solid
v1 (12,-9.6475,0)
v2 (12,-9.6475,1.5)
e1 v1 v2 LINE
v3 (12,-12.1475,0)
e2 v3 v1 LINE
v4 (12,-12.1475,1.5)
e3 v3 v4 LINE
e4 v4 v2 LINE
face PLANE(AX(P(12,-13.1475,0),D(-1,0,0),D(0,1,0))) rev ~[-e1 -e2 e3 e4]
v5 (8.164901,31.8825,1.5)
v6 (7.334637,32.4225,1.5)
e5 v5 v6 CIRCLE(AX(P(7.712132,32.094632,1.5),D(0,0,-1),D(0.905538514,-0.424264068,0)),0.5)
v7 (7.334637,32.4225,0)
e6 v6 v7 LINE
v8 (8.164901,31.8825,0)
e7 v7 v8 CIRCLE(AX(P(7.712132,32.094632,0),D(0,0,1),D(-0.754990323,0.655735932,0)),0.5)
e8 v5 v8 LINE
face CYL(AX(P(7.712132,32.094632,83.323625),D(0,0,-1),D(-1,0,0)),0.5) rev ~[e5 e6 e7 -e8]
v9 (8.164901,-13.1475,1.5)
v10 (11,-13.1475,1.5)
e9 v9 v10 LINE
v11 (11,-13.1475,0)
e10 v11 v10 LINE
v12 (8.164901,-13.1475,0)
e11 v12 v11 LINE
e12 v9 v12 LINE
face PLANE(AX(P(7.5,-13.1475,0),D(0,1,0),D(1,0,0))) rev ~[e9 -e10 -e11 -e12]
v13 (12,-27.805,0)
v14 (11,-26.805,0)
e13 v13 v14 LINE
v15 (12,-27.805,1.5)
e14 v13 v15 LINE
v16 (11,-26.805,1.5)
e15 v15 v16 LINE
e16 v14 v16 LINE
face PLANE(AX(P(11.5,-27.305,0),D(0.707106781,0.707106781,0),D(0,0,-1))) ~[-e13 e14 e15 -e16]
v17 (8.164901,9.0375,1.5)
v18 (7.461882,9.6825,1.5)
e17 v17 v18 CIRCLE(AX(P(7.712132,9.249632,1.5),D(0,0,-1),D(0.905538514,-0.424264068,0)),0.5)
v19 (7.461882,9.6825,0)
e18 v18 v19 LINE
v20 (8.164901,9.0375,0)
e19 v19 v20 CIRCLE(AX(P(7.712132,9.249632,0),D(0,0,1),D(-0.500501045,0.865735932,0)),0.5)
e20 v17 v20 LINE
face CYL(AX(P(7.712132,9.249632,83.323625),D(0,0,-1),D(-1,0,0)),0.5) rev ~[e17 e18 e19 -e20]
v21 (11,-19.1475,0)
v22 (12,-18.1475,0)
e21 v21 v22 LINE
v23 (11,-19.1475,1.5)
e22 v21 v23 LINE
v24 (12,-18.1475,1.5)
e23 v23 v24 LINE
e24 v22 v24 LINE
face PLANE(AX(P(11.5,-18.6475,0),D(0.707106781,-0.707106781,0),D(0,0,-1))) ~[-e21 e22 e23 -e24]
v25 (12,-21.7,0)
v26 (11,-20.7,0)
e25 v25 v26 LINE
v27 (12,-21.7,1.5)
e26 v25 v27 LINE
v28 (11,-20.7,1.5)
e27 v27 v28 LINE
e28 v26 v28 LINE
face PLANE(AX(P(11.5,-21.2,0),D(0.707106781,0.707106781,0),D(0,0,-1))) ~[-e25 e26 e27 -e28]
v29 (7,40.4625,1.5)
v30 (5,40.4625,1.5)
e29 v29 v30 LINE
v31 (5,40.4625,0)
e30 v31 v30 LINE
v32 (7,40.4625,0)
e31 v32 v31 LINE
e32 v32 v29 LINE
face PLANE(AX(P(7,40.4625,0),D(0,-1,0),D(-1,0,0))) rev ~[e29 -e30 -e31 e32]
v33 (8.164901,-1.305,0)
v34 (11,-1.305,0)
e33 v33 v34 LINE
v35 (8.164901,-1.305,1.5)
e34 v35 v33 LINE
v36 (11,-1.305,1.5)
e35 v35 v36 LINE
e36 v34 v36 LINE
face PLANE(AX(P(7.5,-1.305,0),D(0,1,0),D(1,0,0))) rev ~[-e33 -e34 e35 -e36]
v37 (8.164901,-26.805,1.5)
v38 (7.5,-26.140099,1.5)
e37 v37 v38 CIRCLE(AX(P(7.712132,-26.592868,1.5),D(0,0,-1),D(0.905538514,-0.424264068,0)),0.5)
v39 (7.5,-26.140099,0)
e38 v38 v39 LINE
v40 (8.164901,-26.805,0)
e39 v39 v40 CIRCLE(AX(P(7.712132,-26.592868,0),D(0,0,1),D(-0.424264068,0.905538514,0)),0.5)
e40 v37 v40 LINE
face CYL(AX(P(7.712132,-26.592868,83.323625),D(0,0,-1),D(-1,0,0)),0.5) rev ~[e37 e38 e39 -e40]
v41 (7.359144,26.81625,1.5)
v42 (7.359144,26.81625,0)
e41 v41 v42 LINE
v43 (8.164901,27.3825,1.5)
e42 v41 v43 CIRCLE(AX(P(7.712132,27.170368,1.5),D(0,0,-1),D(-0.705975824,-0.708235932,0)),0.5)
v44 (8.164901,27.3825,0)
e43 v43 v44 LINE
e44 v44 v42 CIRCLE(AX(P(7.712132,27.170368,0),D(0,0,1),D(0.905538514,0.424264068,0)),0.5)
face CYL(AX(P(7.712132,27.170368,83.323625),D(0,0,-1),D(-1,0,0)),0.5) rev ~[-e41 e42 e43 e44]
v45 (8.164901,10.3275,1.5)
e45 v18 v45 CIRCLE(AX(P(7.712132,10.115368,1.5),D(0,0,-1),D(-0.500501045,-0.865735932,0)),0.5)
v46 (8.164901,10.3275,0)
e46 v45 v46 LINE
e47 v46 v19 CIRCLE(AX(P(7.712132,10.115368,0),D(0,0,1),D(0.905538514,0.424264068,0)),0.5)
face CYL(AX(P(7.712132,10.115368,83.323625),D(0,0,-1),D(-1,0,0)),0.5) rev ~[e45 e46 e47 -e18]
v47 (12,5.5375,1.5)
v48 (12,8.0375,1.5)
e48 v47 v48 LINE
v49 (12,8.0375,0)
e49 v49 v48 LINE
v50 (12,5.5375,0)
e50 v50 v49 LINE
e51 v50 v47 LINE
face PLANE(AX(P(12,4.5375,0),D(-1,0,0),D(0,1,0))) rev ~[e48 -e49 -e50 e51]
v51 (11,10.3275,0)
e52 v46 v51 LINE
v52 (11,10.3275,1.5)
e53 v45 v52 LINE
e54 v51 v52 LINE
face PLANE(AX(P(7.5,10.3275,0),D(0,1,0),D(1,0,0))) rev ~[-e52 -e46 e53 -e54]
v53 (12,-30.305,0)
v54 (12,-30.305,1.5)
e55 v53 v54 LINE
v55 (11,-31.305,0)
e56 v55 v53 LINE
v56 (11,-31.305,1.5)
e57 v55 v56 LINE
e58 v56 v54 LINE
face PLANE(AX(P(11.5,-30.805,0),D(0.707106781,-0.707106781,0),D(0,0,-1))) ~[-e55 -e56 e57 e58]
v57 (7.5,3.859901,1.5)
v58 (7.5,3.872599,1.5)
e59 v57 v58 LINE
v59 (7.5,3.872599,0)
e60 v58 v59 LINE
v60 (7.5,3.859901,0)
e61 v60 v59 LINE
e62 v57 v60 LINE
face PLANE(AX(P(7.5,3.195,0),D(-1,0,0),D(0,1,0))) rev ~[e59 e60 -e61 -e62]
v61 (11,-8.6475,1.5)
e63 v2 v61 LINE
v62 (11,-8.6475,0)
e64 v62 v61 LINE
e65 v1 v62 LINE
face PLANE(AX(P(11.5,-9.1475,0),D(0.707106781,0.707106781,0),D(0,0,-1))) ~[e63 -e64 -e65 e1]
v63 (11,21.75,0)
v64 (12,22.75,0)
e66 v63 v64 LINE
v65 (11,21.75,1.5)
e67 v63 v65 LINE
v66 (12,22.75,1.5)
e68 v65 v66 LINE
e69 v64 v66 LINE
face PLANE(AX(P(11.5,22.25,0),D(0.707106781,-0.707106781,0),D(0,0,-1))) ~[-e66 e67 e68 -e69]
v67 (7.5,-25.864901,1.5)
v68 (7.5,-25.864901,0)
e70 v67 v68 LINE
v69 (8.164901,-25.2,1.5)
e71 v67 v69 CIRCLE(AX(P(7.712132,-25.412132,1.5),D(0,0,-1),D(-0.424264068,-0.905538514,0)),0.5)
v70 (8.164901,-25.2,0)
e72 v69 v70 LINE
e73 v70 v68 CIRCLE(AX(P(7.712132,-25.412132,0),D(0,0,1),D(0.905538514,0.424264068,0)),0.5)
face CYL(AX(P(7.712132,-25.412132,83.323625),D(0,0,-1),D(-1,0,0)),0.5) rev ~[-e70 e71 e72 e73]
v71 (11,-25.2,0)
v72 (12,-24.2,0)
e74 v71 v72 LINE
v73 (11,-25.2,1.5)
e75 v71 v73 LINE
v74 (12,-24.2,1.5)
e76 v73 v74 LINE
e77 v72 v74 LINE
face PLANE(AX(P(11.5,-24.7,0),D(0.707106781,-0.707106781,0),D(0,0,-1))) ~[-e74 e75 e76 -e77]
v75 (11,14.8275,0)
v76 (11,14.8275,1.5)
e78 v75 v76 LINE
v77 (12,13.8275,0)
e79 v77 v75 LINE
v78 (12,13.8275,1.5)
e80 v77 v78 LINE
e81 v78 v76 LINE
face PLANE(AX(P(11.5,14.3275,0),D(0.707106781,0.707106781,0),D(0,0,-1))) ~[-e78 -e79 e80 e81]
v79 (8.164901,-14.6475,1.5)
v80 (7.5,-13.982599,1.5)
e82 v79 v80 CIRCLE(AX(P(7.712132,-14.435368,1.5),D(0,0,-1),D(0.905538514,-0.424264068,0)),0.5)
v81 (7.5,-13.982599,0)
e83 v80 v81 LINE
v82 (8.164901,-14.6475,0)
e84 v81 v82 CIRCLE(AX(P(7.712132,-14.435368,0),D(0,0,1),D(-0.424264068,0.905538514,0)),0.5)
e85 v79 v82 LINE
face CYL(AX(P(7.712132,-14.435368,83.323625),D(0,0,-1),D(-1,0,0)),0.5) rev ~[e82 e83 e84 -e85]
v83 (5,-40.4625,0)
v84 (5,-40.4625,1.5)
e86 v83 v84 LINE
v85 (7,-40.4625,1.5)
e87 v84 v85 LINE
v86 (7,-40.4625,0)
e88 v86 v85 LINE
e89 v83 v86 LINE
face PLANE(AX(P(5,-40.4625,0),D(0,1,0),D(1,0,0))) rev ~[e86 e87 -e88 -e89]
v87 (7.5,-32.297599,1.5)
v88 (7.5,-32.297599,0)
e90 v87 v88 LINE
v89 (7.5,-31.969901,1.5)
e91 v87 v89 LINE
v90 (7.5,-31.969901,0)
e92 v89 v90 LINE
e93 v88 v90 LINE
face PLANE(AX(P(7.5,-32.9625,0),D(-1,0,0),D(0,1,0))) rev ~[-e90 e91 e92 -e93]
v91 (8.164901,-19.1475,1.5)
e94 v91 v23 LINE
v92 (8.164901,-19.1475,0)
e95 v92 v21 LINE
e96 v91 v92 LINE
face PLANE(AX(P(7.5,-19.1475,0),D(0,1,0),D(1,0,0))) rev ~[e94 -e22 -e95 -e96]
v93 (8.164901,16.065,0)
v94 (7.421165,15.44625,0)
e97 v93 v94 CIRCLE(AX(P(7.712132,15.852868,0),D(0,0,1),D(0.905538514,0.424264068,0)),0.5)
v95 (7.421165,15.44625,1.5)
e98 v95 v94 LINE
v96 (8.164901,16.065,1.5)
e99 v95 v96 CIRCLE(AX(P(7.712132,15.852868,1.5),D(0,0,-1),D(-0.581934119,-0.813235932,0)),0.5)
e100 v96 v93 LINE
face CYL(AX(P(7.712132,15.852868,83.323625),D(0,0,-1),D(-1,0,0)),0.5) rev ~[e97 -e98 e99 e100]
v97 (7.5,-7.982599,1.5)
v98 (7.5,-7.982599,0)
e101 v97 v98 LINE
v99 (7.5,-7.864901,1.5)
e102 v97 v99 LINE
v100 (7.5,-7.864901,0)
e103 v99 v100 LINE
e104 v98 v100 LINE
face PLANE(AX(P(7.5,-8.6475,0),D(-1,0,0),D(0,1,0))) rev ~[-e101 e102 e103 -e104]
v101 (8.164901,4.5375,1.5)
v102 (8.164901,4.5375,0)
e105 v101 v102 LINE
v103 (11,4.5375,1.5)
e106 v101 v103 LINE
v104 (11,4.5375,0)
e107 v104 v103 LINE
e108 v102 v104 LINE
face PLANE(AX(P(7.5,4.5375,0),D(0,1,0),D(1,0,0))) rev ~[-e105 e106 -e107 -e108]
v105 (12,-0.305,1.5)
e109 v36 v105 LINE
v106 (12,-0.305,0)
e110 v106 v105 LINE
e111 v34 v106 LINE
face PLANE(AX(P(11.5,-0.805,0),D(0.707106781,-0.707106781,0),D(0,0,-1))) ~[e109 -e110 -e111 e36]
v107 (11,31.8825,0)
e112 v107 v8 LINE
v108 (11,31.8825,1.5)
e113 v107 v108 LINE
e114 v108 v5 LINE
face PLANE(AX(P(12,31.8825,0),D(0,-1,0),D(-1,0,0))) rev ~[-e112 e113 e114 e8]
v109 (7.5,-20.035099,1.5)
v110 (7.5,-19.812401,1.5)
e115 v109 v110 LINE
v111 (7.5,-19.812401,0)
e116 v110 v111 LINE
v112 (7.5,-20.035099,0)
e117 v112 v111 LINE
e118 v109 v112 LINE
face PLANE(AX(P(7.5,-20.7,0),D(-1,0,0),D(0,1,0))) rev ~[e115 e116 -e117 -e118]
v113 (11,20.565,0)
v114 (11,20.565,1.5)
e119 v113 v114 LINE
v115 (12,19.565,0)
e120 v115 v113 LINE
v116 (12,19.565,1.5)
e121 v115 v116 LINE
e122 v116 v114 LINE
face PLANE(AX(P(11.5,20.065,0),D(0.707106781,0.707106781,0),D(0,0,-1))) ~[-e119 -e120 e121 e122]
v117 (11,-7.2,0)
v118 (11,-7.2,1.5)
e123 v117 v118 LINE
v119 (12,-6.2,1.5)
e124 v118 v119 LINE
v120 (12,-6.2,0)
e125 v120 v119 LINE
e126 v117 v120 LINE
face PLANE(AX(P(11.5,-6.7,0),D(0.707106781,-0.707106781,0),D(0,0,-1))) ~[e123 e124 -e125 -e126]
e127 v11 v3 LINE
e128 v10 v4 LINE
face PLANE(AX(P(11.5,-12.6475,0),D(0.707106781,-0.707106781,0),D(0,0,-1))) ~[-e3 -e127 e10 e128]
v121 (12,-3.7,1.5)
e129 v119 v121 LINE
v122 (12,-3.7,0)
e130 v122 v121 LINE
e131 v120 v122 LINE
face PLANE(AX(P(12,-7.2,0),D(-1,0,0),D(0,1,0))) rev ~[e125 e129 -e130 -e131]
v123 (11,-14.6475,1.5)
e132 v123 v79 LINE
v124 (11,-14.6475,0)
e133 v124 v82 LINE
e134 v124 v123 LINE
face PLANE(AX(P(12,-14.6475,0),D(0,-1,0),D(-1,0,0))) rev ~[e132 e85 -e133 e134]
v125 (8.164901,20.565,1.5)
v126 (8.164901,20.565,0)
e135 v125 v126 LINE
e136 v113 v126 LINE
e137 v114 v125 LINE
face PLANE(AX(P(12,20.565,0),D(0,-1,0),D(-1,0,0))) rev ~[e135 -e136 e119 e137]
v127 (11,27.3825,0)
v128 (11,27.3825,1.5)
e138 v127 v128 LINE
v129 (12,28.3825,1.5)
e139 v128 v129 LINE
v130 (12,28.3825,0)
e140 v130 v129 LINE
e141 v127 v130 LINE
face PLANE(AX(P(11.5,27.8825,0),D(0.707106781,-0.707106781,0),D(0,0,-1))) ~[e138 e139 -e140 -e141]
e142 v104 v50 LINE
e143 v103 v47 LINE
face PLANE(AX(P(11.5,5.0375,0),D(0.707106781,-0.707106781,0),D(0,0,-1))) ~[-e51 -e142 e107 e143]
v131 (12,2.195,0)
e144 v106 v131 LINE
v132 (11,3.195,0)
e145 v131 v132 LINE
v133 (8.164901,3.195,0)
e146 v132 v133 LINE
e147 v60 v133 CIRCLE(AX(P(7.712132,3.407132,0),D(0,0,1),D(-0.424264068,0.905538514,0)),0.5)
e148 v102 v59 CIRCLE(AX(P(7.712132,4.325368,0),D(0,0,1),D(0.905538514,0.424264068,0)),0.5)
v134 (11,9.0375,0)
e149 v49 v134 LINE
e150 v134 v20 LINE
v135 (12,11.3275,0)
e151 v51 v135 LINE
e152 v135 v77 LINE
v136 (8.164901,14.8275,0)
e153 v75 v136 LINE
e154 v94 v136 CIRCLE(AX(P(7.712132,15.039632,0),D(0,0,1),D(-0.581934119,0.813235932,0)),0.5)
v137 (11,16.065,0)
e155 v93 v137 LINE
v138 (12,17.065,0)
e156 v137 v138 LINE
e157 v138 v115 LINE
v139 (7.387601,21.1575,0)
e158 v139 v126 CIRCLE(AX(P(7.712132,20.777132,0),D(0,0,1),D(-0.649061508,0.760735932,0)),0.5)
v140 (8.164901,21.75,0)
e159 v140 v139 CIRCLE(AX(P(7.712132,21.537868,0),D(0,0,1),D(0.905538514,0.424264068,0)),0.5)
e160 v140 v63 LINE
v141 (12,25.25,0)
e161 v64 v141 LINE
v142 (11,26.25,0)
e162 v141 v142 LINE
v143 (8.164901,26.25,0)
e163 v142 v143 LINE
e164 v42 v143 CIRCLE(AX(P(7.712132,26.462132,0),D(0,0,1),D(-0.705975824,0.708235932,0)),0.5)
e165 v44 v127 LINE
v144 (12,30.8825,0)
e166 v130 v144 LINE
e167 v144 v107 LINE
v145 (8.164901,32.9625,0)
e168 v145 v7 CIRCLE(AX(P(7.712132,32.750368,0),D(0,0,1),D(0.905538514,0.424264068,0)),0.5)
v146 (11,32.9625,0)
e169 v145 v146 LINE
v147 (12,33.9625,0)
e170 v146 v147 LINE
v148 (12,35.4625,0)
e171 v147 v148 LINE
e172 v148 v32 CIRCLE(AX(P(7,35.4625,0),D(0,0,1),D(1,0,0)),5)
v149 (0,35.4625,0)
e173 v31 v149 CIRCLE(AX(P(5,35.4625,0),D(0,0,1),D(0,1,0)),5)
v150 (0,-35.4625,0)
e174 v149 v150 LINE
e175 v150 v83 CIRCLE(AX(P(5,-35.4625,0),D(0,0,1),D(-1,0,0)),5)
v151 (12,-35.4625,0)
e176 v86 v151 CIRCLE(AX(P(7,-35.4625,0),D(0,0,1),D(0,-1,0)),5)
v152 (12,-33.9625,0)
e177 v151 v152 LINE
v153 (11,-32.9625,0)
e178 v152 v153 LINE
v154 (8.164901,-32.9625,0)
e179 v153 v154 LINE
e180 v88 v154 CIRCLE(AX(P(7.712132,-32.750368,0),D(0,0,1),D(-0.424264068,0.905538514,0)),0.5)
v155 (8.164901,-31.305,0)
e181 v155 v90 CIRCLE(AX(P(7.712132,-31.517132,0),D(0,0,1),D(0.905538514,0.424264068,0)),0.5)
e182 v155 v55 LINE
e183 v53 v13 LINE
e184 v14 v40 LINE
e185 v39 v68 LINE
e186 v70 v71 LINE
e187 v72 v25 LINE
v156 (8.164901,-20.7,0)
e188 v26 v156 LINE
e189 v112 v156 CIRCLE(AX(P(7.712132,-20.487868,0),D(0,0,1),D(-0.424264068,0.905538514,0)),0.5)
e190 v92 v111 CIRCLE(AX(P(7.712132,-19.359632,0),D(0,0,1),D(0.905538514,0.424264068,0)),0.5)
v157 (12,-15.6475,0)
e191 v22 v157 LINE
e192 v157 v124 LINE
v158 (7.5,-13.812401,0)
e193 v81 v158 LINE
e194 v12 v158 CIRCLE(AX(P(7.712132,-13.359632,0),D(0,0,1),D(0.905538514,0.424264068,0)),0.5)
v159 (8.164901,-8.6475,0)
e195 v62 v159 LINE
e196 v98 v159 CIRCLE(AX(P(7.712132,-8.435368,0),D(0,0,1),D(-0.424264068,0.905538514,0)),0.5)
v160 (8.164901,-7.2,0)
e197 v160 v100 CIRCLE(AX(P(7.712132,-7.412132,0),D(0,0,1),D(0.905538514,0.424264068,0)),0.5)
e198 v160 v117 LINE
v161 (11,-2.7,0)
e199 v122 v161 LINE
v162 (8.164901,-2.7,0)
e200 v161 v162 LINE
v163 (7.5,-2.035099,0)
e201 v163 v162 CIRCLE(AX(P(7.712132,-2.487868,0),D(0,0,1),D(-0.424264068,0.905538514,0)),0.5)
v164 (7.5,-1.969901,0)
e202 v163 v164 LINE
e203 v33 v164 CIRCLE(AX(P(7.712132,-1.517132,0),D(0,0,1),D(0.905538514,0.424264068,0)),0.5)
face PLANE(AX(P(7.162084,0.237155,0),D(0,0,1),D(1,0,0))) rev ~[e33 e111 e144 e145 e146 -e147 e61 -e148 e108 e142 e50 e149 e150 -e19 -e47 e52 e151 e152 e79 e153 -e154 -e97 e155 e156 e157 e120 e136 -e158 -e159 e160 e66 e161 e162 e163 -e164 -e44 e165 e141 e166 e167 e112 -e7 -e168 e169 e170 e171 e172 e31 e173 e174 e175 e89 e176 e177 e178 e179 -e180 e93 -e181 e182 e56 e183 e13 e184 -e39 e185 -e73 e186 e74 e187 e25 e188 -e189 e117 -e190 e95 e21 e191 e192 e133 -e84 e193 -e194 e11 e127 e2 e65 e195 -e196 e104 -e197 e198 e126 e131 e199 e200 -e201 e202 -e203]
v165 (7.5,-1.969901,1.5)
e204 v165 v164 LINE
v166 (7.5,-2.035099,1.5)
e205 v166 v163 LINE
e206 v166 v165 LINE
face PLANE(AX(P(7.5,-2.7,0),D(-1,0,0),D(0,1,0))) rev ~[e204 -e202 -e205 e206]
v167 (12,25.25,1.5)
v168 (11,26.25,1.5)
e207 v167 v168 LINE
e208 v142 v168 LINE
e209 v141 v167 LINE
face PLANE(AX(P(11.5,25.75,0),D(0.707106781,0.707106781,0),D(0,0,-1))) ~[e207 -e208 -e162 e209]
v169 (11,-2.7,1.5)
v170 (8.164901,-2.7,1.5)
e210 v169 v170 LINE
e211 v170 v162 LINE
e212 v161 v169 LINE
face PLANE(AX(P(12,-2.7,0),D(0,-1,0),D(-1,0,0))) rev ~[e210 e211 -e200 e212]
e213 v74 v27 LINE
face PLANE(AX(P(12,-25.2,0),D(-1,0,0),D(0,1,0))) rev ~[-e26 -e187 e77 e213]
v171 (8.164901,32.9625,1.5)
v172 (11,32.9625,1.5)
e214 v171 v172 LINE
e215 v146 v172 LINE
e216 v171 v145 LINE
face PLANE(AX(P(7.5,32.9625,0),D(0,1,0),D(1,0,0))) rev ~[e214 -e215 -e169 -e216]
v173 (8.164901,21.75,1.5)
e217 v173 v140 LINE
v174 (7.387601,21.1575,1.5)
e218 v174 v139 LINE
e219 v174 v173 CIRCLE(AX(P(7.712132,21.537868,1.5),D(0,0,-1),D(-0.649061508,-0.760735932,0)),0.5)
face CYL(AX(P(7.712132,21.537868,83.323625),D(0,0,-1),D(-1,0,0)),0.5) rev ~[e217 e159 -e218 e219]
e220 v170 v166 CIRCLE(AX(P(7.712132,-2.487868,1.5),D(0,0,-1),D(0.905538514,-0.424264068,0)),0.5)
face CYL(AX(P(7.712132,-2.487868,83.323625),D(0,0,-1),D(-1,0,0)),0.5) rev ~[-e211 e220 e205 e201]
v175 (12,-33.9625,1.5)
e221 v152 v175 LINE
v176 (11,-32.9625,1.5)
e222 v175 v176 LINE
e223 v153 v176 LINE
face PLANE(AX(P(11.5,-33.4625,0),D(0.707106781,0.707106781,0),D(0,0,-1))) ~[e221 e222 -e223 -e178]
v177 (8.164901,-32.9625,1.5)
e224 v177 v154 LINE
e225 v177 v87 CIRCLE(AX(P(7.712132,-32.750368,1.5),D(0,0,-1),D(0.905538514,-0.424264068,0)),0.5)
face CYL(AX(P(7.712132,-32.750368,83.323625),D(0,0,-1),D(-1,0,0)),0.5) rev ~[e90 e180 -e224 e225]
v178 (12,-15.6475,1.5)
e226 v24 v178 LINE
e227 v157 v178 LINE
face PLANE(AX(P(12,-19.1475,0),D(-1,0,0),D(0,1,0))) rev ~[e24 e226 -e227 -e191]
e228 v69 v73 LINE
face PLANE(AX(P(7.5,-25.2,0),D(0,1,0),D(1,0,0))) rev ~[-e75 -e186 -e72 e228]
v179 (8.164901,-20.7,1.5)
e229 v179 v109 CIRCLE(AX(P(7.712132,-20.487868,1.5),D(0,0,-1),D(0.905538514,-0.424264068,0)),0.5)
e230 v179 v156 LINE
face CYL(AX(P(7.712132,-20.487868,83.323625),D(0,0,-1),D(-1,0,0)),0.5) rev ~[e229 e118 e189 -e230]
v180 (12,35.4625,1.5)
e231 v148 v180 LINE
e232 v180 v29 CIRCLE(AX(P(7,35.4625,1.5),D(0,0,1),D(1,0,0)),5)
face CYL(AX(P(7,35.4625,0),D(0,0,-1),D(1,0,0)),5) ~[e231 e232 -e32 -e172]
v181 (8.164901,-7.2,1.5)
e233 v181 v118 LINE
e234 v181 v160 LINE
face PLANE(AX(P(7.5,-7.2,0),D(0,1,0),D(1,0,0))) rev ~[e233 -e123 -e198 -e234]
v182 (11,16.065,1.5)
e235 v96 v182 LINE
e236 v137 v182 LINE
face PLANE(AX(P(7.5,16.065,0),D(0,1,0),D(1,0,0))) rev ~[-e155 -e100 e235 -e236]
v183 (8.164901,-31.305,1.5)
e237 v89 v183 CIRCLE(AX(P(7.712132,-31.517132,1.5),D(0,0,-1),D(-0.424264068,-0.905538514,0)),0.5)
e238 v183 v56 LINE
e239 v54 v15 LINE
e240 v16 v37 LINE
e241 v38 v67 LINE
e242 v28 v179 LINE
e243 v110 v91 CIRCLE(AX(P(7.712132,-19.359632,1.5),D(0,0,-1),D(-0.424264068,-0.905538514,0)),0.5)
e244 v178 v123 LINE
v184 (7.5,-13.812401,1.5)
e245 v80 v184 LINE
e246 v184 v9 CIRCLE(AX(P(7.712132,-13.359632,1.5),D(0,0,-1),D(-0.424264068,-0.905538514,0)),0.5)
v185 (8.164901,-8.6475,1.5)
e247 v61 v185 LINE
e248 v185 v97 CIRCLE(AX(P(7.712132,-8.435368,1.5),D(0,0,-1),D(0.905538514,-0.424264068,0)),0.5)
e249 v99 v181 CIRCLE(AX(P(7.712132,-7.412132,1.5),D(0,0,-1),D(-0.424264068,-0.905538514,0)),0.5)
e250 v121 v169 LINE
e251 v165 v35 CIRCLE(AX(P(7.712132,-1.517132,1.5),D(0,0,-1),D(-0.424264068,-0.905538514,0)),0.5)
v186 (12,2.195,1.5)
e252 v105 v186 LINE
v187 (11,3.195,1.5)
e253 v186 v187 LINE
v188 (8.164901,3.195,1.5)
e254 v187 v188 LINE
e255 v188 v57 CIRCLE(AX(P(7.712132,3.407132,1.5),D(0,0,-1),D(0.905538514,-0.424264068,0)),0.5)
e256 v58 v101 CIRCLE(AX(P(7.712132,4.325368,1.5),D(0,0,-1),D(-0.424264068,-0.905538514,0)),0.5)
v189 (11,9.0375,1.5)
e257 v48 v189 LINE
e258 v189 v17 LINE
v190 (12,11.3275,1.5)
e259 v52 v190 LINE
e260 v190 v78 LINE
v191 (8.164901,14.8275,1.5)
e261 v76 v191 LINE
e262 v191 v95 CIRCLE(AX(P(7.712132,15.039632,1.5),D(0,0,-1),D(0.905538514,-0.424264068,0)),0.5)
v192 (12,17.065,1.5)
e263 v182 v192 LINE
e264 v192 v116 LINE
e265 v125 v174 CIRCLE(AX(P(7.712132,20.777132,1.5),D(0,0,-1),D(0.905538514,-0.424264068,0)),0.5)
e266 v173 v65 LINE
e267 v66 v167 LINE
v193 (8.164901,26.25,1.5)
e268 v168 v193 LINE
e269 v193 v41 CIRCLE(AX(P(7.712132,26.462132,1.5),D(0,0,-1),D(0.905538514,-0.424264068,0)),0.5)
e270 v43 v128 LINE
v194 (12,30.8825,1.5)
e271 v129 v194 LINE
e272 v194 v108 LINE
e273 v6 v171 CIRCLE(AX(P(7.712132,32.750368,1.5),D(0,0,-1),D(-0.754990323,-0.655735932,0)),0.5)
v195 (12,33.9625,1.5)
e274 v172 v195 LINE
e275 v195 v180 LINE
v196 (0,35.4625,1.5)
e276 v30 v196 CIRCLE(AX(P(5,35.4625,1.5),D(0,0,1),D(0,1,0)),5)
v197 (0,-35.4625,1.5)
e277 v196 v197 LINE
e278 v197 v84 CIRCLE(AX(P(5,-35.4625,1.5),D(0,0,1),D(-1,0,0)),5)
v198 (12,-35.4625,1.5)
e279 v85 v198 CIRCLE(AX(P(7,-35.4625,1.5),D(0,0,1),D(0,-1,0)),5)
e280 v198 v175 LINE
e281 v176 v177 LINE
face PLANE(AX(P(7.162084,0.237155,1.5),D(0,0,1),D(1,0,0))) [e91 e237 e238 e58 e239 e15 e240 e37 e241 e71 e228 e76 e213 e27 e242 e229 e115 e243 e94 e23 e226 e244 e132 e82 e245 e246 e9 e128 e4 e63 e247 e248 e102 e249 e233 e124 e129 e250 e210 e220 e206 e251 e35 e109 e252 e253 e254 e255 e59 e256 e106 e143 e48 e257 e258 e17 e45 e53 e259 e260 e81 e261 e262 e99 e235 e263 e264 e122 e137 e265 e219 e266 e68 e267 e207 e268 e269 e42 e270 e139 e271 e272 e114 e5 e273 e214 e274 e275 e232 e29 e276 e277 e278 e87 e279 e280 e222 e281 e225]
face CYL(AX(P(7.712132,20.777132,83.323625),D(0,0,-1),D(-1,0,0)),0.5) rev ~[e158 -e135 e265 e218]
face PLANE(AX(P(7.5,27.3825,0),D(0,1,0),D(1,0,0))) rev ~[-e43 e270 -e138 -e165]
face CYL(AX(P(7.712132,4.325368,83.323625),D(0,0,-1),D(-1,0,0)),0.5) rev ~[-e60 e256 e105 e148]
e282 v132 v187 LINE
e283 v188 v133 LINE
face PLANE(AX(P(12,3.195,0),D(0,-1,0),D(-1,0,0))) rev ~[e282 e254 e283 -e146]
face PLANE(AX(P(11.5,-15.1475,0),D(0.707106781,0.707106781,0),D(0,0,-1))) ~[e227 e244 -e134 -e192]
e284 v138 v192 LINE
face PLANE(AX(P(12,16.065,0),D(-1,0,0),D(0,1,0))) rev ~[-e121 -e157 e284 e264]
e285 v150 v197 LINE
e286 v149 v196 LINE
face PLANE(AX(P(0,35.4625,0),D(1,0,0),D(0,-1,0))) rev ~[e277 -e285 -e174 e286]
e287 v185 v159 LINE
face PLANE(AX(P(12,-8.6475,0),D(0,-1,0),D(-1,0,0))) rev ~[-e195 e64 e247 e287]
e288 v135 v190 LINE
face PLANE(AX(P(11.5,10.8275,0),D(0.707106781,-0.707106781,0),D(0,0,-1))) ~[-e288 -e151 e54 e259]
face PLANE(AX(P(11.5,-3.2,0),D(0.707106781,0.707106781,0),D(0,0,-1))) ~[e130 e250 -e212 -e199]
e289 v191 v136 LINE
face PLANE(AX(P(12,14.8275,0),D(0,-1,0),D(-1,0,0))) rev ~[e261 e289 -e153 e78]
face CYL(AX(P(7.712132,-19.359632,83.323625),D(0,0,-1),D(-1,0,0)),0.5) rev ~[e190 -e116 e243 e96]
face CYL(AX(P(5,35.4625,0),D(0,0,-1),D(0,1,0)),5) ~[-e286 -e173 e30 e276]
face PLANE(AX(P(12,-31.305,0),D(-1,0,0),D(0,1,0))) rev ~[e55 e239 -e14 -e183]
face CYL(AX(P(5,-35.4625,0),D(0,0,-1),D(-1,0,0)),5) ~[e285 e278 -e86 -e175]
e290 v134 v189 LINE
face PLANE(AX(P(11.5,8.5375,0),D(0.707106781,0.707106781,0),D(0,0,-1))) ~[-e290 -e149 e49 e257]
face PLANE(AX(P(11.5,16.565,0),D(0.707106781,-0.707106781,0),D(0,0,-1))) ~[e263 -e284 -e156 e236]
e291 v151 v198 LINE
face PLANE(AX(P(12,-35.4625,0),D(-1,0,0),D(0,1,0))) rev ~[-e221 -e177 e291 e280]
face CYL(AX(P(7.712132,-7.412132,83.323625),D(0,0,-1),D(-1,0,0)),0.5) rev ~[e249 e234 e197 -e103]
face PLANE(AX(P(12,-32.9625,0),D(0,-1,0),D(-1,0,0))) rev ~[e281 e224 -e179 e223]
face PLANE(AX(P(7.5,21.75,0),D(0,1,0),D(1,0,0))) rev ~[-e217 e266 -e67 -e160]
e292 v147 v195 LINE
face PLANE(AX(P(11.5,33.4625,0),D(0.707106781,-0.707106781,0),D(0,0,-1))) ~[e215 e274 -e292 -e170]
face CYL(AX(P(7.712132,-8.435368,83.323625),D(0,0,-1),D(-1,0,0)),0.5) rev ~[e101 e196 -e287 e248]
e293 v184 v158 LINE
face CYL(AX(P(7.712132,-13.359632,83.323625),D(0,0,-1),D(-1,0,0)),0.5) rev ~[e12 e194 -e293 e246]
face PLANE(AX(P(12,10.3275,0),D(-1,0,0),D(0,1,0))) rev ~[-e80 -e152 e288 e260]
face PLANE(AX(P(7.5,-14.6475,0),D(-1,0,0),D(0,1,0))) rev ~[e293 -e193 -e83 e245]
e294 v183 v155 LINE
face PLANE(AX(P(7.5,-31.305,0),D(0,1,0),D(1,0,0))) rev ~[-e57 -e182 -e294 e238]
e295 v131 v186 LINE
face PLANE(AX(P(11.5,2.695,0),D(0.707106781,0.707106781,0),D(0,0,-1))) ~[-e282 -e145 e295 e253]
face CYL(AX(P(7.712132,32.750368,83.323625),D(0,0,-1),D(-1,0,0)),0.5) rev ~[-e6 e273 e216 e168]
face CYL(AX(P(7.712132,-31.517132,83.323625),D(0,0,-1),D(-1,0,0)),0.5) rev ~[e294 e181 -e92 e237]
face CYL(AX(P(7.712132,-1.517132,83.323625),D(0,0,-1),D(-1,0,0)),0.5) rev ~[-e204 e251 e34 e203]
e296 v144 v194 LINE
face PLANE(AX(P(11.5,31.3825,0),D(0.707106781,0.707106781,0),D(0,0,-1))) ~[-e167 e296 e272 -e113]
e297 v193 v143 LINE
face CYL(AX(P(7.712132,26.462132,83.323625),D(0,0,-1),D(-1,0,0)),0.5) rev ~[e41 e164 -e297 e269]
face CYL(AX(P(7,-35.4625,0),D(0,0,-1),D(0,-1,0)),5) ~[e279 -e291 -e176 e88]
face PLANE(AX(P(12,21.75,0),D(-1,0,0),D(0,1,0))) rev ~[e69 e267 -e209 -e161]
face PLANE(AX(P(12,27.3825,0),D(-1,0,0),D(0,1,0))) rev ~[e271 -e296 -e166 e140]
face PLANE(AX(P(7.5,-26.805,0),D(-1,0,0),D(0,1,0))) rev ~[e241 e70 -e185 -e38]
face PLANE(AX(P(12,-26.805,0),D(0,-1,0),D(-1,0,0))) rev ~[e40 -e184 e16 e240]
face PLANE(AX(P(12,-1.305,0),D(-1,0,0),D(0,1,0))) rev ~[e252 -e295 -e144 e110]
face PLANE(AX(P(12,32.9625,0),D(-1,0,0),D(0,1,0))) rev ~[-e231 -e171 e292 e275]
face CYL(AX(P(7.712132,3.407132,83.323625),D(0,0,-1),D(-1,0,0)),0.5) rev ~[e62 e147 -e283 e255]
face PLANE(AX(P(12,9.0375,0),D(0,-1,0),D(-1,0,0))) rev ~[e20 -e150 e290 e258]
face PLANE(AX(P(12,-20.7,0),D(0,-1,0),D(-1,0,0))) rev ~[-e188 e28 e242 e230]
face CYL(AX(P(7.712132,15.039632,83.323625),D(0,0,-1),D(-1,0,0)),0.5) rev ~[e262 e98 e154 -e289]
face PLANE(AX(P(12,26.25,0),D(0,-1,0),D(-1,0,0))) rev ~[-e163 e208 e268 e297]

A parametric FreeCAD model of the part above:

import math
import FreeCAD as App
import Part
import Sketcher


def edges_at(feature, points):
    """Names of the edges that pass closest to the given points."""
    edges = feature.Shape.Edges
    near = lambda p: min(range(len(edges)), key=lambda i: edges[i].distToShape(Part.Vertex(*p))[0])
    return sorted({f"Edge{near(p) + 1}" for p in points})

doc = App.newDocument("Part")
body = doc.addObject("PartDesign::Body", "Body")

# Sketch on XY plane
sketch1 = body.newObject("Sketcher::SketchObject", "Sketch")
sketch1.AttachmentSupport = (doc.getObject("XY_Plane"), [""])
sketch1.MapMode = "FlatFace"
sketch1.addGeometry(Part.LineSegment(App.Vector(0, 35.5, 0), App.Vector(0, -35.5, 0)), False)
sketch1.addGeometry(Part.ArcOfCircle(Part.Circle(App.Vector(5, -35.5, 0), App.Vector(0, 0, 1), 5), math.radians(180), math.radians(270)), False)
sketch1.addGeometry(Part.LineSegment(App.Vector(5, -40.5, 0), App.Vector(7, -40.5, 0)), False)
sketch1.addGeometry(Part.ArcOfCircle(Part.Circle(App.Vector(7, -35.5, 0), App.Vector(0, 0, 1), 5), math.radians(-90), math.radians(0)), False)
sketch1.addGeometry(Part.LineSegment(App.Vector(12, -35.5, 0), App.Vector(12, -33, 0)), False)
sketch1.addGeometry(Part.LineSegment(App.Vector(12, -33, 0), App.Vector(7.5, -33, 0)), False)
sketch1.addGeometry(Part.LineSegment(App.Vector(7.5, -33, 0), App.Vector(7.5, -31.3, 0)), False)
sketch1.addGeometry(Part.LineSegment(App.Vector(7.5, -31.3, 0), App.Vector(12, -31.3, 0)), False)
sketch1.addGeometry(Part.LineSegment(App.Vector(12, -31.3, 0), App.Vector(12, -26.8, 0)), False)
sketch1.addGeometry(Part.LineSegment(App.Vector(12, -26.8, 0), App.Vector(7.5, -26.8, 0)), False)
sketch1.addGeometry(Part.LineSegment(App.Vector(7.5, -26.8, 0), App.Vector(7.5, -25.2, 0)), False)
sketch1.addGeometry(Part.LineSegment(App.Vector(7.5, -25.2, 0), App.Vector(12, -25.2, 0)), False)
sketch1.addGeometry(Part.LineSegment(App.Vector(12, -25.2, 0), App.Vector(12, -20.7, 0)), False)
sketch1.addGeometry(Part.LineSegment(App.Vector(12, -20.7, 0), App.Vector(7.5, -20.7, 0)), False)
sketch1.addGeometry(Part.LineSegment(App.Vector(7.5, -20.7, 0), App.Vector(7.5, -19.1, 0)), False)
sketch1.addGeometry(Part.LineSegment(App.Vector(7.5, -19.1, 0), App.Vector(12, -19.1, 0)), False)
sketch1.addGeometry(Part.LineSegment(App.Vector(12, -19.1, 0), App.Vector(12, -14.6, 0)), False)
sketch1.addGeometry(Part.LineSegment(App.Vector(12, -14.6, 0), App.Vector(7.5, -14.6, 0)), False)
sketch1.addGeometry(Part.LineSegment(App.Vector(7.5, -14.6, 0), App.Vector(7.5, -13.1, 0)), False)
sketch1.addGeometry(Part.LineSegment(App.Vector(7.5, -13.1, 0), App.Vector(12, -13.1, 0)), False)
sketch1.addGeometry(Part.LineSegment(App.Vector(12, -13.1, 0), App.Vector(12, -8.6, 0)), False)
sketch1.addGeometry(Part.LineSegment(App.Vector(12, -8.6, 0), App.Vector(7.5, -8.6, 0)), False)
sketch1.addGeometry(Part.LineSegment(App.Vector(7.5, -8.6, 0), App.Vector(7.5, -7.2, 0)), False)
sketch1.addGeometry(Part.LineSegment(App.Vector(7.5, -7.2, 0), App.Vector(12, -7.2, 0)), False)
sketch1.addGeometry(Part.LineSegment(App.Vector(12, -7.2, 0), App.Vector(12, -2.7, 0)), False)
sketch1.addGeometry(Part.LineSegment(App.Vector(12, -2.7, 0), App.Vector(7.5, -2.7, 0)), False)
sketch1.addGeometry(Part.LineSegment(App.Vector(7.5, -2.7, 0), App.Vector(7.5, -1.3, 0)), False)
sketch1.addGeometry(Part.LineSegment(App.Vector(7.5, -1.3, 0), App.Vector(12, -1.3, 0)), False)
sketch1.addGeometry(Part.LineSegment(App.Vector(12, -1.3, 0), App.Vector(12, 3.2, 0)), False)
sketch1.addGeometry(Part.LineSegment(App.Vector(12, 3.2, 0), App.Vector(7.5, 3.2, 0)), False)
sketch1.addGeometry(Part.LineSegment(App.Vector(7.5, 3.2, 0), App.Vector(7.5, 4.5, 0)), False)
sketch1.addGeometry(Part.LineSegment(App.Vector(7.5, 4.5, 0), App.Vector(12, 4.5, 0)), False)
sketch1.addGeometry(Part.LineSegment(App.Vector(12, 4.5, 0), App.Vector(12, 9, 0)), False)
sketch1.addGeometry(Part.LineSegment(App.Vector(12, 9, 0), App.Vector(7.5, 9, 0)), False)
sketch1.addGeometry(Part.LineSegment(App.Vector(7.5, 9, 0), App.Vector(7.5, 10.3, 0)), False)
sketch1.addGeometry(Part.LineSegment(App.Vector(7.5, 10.3, 0), App.Vector(12, 10.3, 0)), False)
sketch1.addGeometry(Part.LineSegment(App.Vector(12, 10.3, 0), App.Vector(12, 14.8, 0)), False)
sketch1.addGeometry(Part.LineSegment(App.Vector(12, 14.8, 0), App.Vector(7.5, 14.8, 0)), False)
sketch1.addGeometry(Part.LineSegment(App.Vector(7.5, 14.8, 0), App.Vector(7.5, 16.1, 0)), False)
sketch1.addGeometry(Part.LineSegment(App.Vector(7.5, 16.1, 0), App.Vector(12, 16.1, 0)), False)
sketch1.addGeometry(Part.LineSegment(App.Vector(12, 16.1, 0), App.Vector(12, 20.6, 0)), False)
sketch1.addGeometry(Part.LineSegment(App.Vector(12, 20.6, 0), App.Vector(7.5, 20.6, 0)), False)
sketch1.addGeometry(Part.LineSegment(App.Vector(7.5, 20.6, 0), App.Vector(7.5, 21.8, 0)), False)
sketch1.addGeometry(Part.LineSegment(App.Vector(7.5, 21.8, 0), App.Vector(12, 21.8, 0)), False)
sketch1.addGeometry(Part.LineSegment(App.Vector(12, 21.8, 0), App.Vector(12, 26.2, 0)), False)
sketch1.addGeometry(Part.LineSegment(App.Vector(12, 26.2, 0), App.Vector(7.5, 26.2, 0)), False)
sketch1.addGeometry(Part.LineSegment(App.Vector(7.5, 26.2, 0), App.Vector(7.5, 27.4, 0)), False)
sketch1.addGeometry(Part.LineSegment(App.Vector(7.5, 27.4, 0), App.Vector(12, 27.4, 0)), False)
sketch1.addGeometry(Part.LineSegment(App.Vector(12, 27.4, 0), App.Vector(12, 31.9, 0)), False)
sketch1.addGeometry(Part.LineSegment(App.Vector(12, 31.9, 0), App.Vector(7.5, 31.9, 0)), False)
sketch1.addGeometry(Part.LineSegment(App.Vector(7.5, 31.9, 0), App.Vector(7.5, 33, 0)), False)
sketch1.addGeometry(Part.LineSegment(App.Vector(7.5, 33, 0), App.Vector(12, 33, 0)), False)
sketch1.addGeometry(Part.LineSegment(App.Vector(12, 33, 0), App.Vector(12, 35.5, 0)), False)
sketch1.addGeometry(Part.ArcOfCircle(Part.Circle(App.Vector(7, 35.5, 0), App.Vector(0, 0, 1), 5), math.radians(0), math.radians(90)), False)
sketch1.addGeometry(Part.LineSegment(App.Vector(7, 40.5, 0), App.Vector(5, 40.5, 0)), False)
sketch1.addGeometry(Part.ArcOfCircle(Part.Circle(App.Vector(5, 35.5, 0), App.Vector(0, 0, 1), 5), math.radians(90), math.radians(180)), False)
sketch1.addConstraint(Sketcher.Constraint("Tangent", 0, 2, 1, 1))
sketch1.addConstraint(Sketcher.Constraint("Tangent", 1, 2, 2, 1))
sketch1.addConstraint(Sketcher.Constraint("Tangent", 2, 2, 3, 1))
sketch1.addConstraint(Sketcher.Constraint("Tangent", 3, 2, 4, 1))
sketch1.addConstraint(Sketcher.Constraint("Coincident", 4, 2, 5, 1))
sketch1.addConstraint(Sketcher.Constraint("Coincident", 5, 2, 6, 1))
sketch1.addConstraint(Sketcher.Constraint("Coincident", 6, 2, 7, 1))
sketch1.addConstraint(Sketcher.Constraint("Coincident", 7, 2, 8, 1))
sketch1.addConstraint(Sketcher.Constraint("Coincident", 8, 2, 9, 1))
sketch1.addConstraint(Sketcher.Constraint("Coincident", 9, 2, 10, 1))
sketch1.addConstraint(Sketcher.Constraint("Coincident", 10, 2, 11, 1))
sketch1.addConstraint(Sketcher.Constraint("Coincident", 11, 2, 12, 1))
sketch1.addConstraint(Sketcher.Constraint("Coincident", 12, 2, 13, 1))
sketch1.addConstraint(Sketcher.Constraint("Coincident", 13, 2, 14, 1))
sketch1.addConstraint(Sketcher.Constraint("Coincident", 14, 2, 15, 1))
sketch1.addConstraint(Sketcher.Constraint("Coincident", 15, 2, 16, 1))
sketch1.addConstraint(Sketcher.Constraint("Coincident", 16, 2, 17, 1))
sketch1.addConstraint(Sketcher.Constraint("Coincident", 17, 2, 18, 1))
sketch1.addConstraint(Sketcher.Constraint("Coincident", 18, 2, 19, 1))
sketch1.addConstraint(Sketcher.Constraint("Coincident", 19, 2, 20, 1))
sketch1.addConstraint(Sketcher.Constraint("Coincident", 20, 2, 21, 1))
sketch1.addConstraint(Sketcher.Constraint("Coincident", 21, 2, 22, 1))
sketch1.addConstraint(Sketcher.Constraint("Coincident", 22, 2, 23, 1))
sketch1.addConstraint(Sketcher.Constraint("Coincident", 23, 2, 24, 1))
sketch1.addConstraint(Sketcher.Constraint("Coincident", 24, 2, 25, 1))
sketch1.addConstraint(Sketcher.Constraint("Coincident", 25, 2, 26, 1))
sketch1.addConstraint(Sketcher.Constraint("Coincident", 26, 2, 27, 1))
sketch1.addConstraint(Sketcher.Constraint("Coincident", 27, 2, 28, 1))
sketch1.addConstraint(Sketcher.Constraint("Coincident", 28, 2, 29, 1))
sketch1.addConstraint(Sketcher.Constraint("Coincident", 29, 2, 30, 1))
sketch1.addConstraint(Sketcher.Constraint("Coincident", 30, 2, 31, 1))
sketch1.addConstraint(Sketcher.Constraint("Coincident", 31, 2, 32, 1))
sketch1.addConstraint(Sketcher.Constraint("Coincident", 32, 2, 33, 1))
sketch1.addConstraint(Sketcher.Constraint("Coincident", 33, 2, 34, 1))
sketch1.addConstraint(Sketcher.Constraint("Coincident", 34, 2, 35, 1))
sketch1.addConstraint(Sketcher.Constraint("Coincident", 35, 2, 36, 1))
sketch1.addConstraint(Sketcher.Constraint("Coincident", 36, 2, 37, 1))
sketch1.addConstraint(Sketcher.Constraint("Coincident", 37, 2, 38, 1))
sketch1.addConstraint(Sketcher.Constraint("Coincident", 38, 2, 39, 1))
sketch1.addConstraint(Sketcher.Constraint("Coincident", 39, 2, 40, 1))
sketch1.addConstraint(Sketcher.Constraint("Coincident", 40, 2, 41, 1))
sketch1.addConstraint(Sketcher.Constraint("Coincident", 41, 2, 42, 1))
sketch1.addConstraint(Sketcher.Constraint("Coincident", 42, 2, 43, 1))
sketch1.addConstraint(Sketcher.Constraint("Coincident", 43, 2, 44, 1))
sketch1.addConstraint(Sketcher.Constraint("Coincident", 44, 2, 45, 1))
sketch1.addConstraint(Sketcher.Constraint("Coincident", 45, 2, 46, 1))
sketch1.addConstraint(Sketcher.Constraint("Coincident", 46, 2, 47, 1))
sketch1.addConstraint(Sketcher.Constraint("Coincident", 47, 2, 48, 1))
sketch1.addConstraint(Sketcher.Constraint("Coincident", 48, 2, 49, 1))
sketch1.addConstraint(Sketcher.Constraint("Coincident", 49, 2, 50, 1))
sketch1.addConstraint(Sketcher.Constraint("Coincident", 50, 2, 51, 1))
sketch1.addConstraint(Sketcher.Constraint("Coincident", 51, 2, 52, 1))
sketch1.addConstraint(Sketcher.Constraint("Tangent", 52, 2, 53, 1))
sketch1.addConstraint(Sketcher.Constraint("Tangent", 53, 2, 54, 1))
sketch1.addConstraint(Sketcher.Constraint("Tangent", 54, 2, 55, 1))
sketch1.addConstraint(Sketcher.Constraint("Tangent", 55, 2, 0, 1))
sketch1.addConstraint(Sketcher.Constraint("Vertical", 0))
sketch1.addConstraint(Sketcher.Constraint("Horizontal", 2))
sketch1.addConstraint(Sketcher.Constraint("Vertical", 4))
sketch1.addConstraint(Sketcher.Constraint("Horizontal", 5))
sketch1.addConstraint(Sketcher.Constraint("Vertical", 6))
sketch1.addConstraint(Sketcher.Constraint("Horizontal", 7))
sketch1.addConstraint(Sketcher.Constraint("Vertical", 8))
sketch1.addConstraint(Sketcher.Constraint("Horizontal", 9))
sketch1.addConstraint(Sketcher.Constraint("Vertical", 10))
sketch1.addConstraint(Sketcher.Constraint("Horizontal", 11))
sketch1.addConstraint(Sketcher.Constraint("Vertical", 12))
sketch1.addConstraint(Sketcher.Constraint("Horizontal", 13))
sketch1.addConstraint(Sketcher.Constraint("Vertical", 14))
sketch1.addConstraint(Sketcher.Constraint("Horizontal", 15))
sketch1.addConstraint(Sketcher.Constraint("Vertical", 16))
sketch1.addConstraint(Sketcher.Constraint("Horizontal", 17))
sketch1.addConstraint(Sketcher.Constraint("Vertical", 18))
sketch1.addConstraint(Sketcher.Constraint("Horizontal", 19))
sketch1.addConstraint(Sketcher.Constraint("Vertical", 20))
sketch1.addConstraint(Sketcher.Constraint("Horizontal", 21))
sketch1.addConstraint(Sketcher.Constraint("Vertical", 22))
sketch1.addConstraint(Sketcher.Constraint("Horizontal", 23))
sketch1.addConstraint(Sketcher.Constraint("Vertical", 24))
sketch1.addConstraint(Sketcher.Constraint("Horizontal", 25))
sketch1.addConstraint(Sketcher.Constraint("Vertical", 26))
sketch1.addConstraint(Sketcher.Constraint("Horizontal", 27))
sketch1.addConstraint(Sketcher.Constraint("Vertical", 28))
sketch1.addConstraint(Sketcher.Constraint("Horizontal", 29))
sketch1.addConstraint(Sketcher.Constraint("Vertical", 30))
sketch1.addConstraint(Sketcher.Constraint("Horizontal", 31))
sketch1.addConstraint(Sketcher.Constraint("Vertical", 32))
sketch1.addConstraint(Sketcher.Constraint("Horizontal", 33))
sketch1.addConstraint(Sketcher.Constraint("Vertical", 34))
sketch1.addConstraint(Sketcher.Constraint("Horizontal", 35))
sketch1.addConstraint(Sketcher.Constraint("Vertical", 36))
sketch1.addConstraint(Sketcher.Constraint("Horizontal", 37))
sketch1.addConstraint(Sketcher.Constraint("Vertical", 38))
sketch1.addConstraint(Sketcher.Constraint("Horizontal", 39))
sketch1.addConstraint(Sketcher.Constraint("Vertical", 40))
sketch1.addConstraint(Sketcher.Constraint("Horizontal", 41))
sketch1.addConstraint(Sketcher.Constraint("Vertical", 42))
sketch1.addConstraint(Sketcher.Constraint("Horizontal", 43))
sketch1.addConstraint(Sketcher.Constraint("Vertical", 44))
sketch1.addConstraint(Sketcher.Constraint("Horizontal", 45))
sketch1.addConstraint(Sketcher.Constraint("Vertical", 46))
sketch1.addConstraint(Sketcher.Constraint("Horizontal", 47))
sketch1.addConstraint(Sketcher.Constraint("Vertical", 48))
sketch1.addConstraint(Sketcher.Constraint("Horizontal", 49))
sketch1.addConstraint(Sketcher.Constraint("Vertical", 50))
sketch1.addConstraint(Sketcher.Constraint("Horizontal", 51))
sketch1.addConstraint(Sketcher.Constraint("Vertical", 52))
sketch1.addConstraint(Sketcher.Constraint("Horizontal", 54))
sketch1.addConstraint(Sketcher.Constraint("Equal", 1, 3))
sketch1.addConstraint(Sketcher.Constraint("Equal", 3, 53))
sketch1.addConstraint(Sketcher.Constraint("Equal", 53, 55))
sketch1.addConstraint(Sketcher.Constraint("Symmetric", 0, 2, 55, 2, -1, 1))
sketch1.addConstraint(Sketcher.Constraint("Symmetric", 5, 2, 50, 2, -1))
sketch1.addConstraint(Sketcher.Constraint("Vertical", 3, 3, 53, 3))
sketch1.addConstraint(Sketcher.Constraint("Vertical", 4, 2, 7, 2))
sketch1.addConstraint(Sketcher.Constraint("Vertical", 6, 2, 9, 2))
sketch1.addConstraint(Sketcher.Constraint("Vertical", 8, 2, 11, 2))
sketch1.addConstraint(Sketcher.Constraint("Vertical", 10, 2, 13, 2))
sketch1.addConstraint(Sketcher.Constraint("Vertical", 12, 2, 15, 2))
sketch1.addConstraint(Sketcher.Constraint("Vertical", 14, 2, 17, 2))
sketch1.addConstraint(Sketcher.Constraint("Vertical", 16, 2, 19, 2))
sketch1.addConstraint(Sketcher.Constraint("Vertical", 18, 2, 21, 2))
sketch1.addConstraint(Sketcher.Constraint("Vertical", 20, 2, 23, 2))
sketch1.addConstraint(Sketcher.Constraint("Vertical", 22, 2, 25, 2))
sketch1.addConstraint(Sketcher.Constraint("Vertical", 24, 2, 27, 2))
sketch1.addConstraint(Sketcher.Constraint("Vertical", 26, 2, 29, 2))
sketch1.addConstraint(Sketcher.Constraint("Vertical", 28, 2, 31, 2))
sketch1.addConstraint(Sketcher.Constraint("Vertical", 30, 2, 33, 2))
sketch1.addConstraint(Sketcher.Constraint("Vertical", 32, 2, 35, 2))
sketch1.addConstraint(Sketcher.Constraint("Vertical", 34, 2, 37, 2))
sketch1.addConstraint(Sketcher.Constraint("Vertical", 36, 2, 39, 2))
sketch1.addConstraint(Sketcher.Constraint("Vertical", 38, 2, 41, 2))
sketch1.addConstraint(Sketcher.Constraint("Vertical", 40, 2, 43, 2))
sketch1.addConstraint(Sketcher.Constraint("Vertical", 42, 2, 45, 2))
sketch1.addConstraint(Sketcher.Constraint("Vertical", 44, 2, 47, 2))
sketch1.addConstraint(Sketcher.Constraint("Equal", 51, 8))
sketch1.addConstraint(Sketcher.Constraint("Equal", 8, 12))
sketch1.addConstraint(Sketcher.Constraint("Equal", 12, 16))
sketch1.addConstraint(Sketcher.Constraint("Equal", 16, 20))
sketch1.addConstraint(Sketcher.Constraint("Equal", 20, 24))
sketch1.addConstraint(Sketcher.Constraint("Equal", 24, 28))
sketch1.addConstraint(Sketcher.Constraint("Equal", 28, 32))
sketch1.addConstraint(Sketcher.Constraint("Equal", 32, 36))
sketch1.addConstraint(Sketcher.Constraint("Equal", 36, 40))
sketch1.addConstraint(Sketcher.Constraint("Equal", 40, 44))
sketch1.addConstraint(Sketcher.Constraint("Equal", 44, 48))
sketch1.addConstraint(Sketcher.Constraint("Radius", 1, 5.0))
sketch1.addConstraint(Sketcher.Constraint("DistanceX", 2, 1, 2, 2, 2.0))
sketch1.addConstraint(Sketcher.Constraint("DistanceX", 5, 2, 5, 1, 4.5))
sketch1.addConstraint(Sketcher.Constraint("DistanceY", 4, 1, 4, 2, 2.5))
sketch1.addConstraint(Sketcher.Constraint("DistanceY", 18, 1, 18, 2, 1.5))
sketch1.addConstraint(Sketcher.Constraint("DistanceY", 34, 1, 34, 2, 1.29))
sketch1.addConstraint(Sketcher.Constraint("DistanceY", 50, 1, 50, 2, 1.08))
sketch1.addConstraint(Sketcher.Constraint("DistanceY", 10, 2, -1, 1, 25.2))
sketch1.addConstraint(Sketcher.Constraint("DistanceY", 22, 2, -1, 1, 7.2))
sketch1.addConstraint(Sketcher.Constraint("DistanceY", 0, 2, 0, 1, 70.925))
sketch1.addConstraint(Sketcher.Constraint("DistanceY", 10, 1, 10, 2, 1.605))
sketch1.addConstraint(Sketcher.Constraint("DistanceY", 26, 1, 26, 2, 1.395))
sketch1.addConstraint(Sketcher.Constraint("DistanceY", 42, 1, 42, 2, 1.185))
sketch1.addConstraint(Sketcher.Constraint("DistanceY", -1, 1, 42, 2, 21.75))
sketch1.addConstraint(Sketcher.Constraint("DistanceY", 14, 1, 14, 2, 1.5525))
sketch1.addConstraint(Sketcher.Constraint("DistanceY", 30, 1, 30, 2, 1.3425))
pad1 = body.newObject("PartDesign::Pad", "Pad")
pad1.Profile = sketch1
pad1.Length = 1.5
doc.recompute()

chamfer = body.newObject("PartDesign::Chamfer", "Chamfer")
chamfer.Base = (pad1, edges_at(pad1, [
    (12, 31.883, 0.75),
    (12, 27.383, 0.75),
    (12, 26.25, 0.75),
    (12, 21.75, 0.75),
    (12, 20.565, 0.75),
    (12, 16.065, 0.75),
    (12, 14.828, 0.75),
    (12, 10.328, 0.75),
    (12, 9.037, 0.75),
    (12, 4.537, 0.75),
    (12, 3.195, 0.75),
    (12, -1.305, 0.75),
    (12, -2.7, 0.75),
    (12, -7.2, 0.75),
    (12, -8.648, 0.75),
    (12, -13.148, 0.75),
    (12, -14.648, 0.75),
    (12, -19.148, 0.75),
    (12, -20.7, 0.75),
    (12, -25.2, 0.75),
    (12, -26.805, 0.75),
    (12, -31.305, 0.75),
    (12, -32.962, 0.75),
    (12, 32.962, 0.75),
]))
chamfer.Size = 1

# Sketch on XY plane
sketch2 = body.newObject("Sketcher::SketchObject", "Sketch001")
sketch2.AttachmentSupport = (doc.getObject("XY_Plane"), [""])
sketch2.MapMode = "FlatFace"
sketch2.AttachmentOffset = App.Placement(App.Vector(0, 0, 1.5), App.Rotation())
sketch2.addGeometry(Part.Circle(App.Vector(7.7, 32.8, 0), App.Vector(0, 0, 1), 0.5), False)
sketch2.addGeometry(Part.Circle(App.Vector(7.7, 32.1, 0), App.Vector(0, 0, 1), 0.5), False)
sketch2.addGeometry(Part.Circle(App.Vector(7.7, 27.2, 0), App.Vector(0, 0, 1), 0.5), False)
sketch2.addGeometry(Part.Circle(App.Vector(7.7, 26.5, 0), App.Vector(0, 0, 1), 0.5), False)
sketch2.addGeometry(Part.Circle(App.Vector(7.7, 21.5, 0), App.Vector(0, 0, 1), 0.5), False)
sketch2.addGeometry(Part.Circle(App.Vector(7.7, 20.8, 0), App.Vector(0, 0, 1), 0.5), False)
sketch2.addGeometry(Part.Circle(App.Vector(7.7, 15.9, 0), App.Vector(0, 0, 1), 0.5), False)
sketch2.addGeometry(Part.Circle(App.Vector(7.7, 15, 0), App.Vector(0, 0, 1), 0.5), False)
sketch2.addGeometry(Part.Circle(App.Vector(7.7, 10.1, 0), App.Vector(0, 0, 1), 0.5), False)
sketch2.addGeometry(Part.Circle(App.Vector(7.7, 9.2, 0), App.Vector(0, 0, 1), 0.5), False)
sketch2.addGeometry(Part.Circle(App.Vector(7.7, 4.3, 0), App.Vector(0, 0, 1), 0.5), False)
sketch2.addGeometry(Part.Circle(App.Vector(7.7, 3.4, 0), App.Vector(0, 0, 1), 0.5), False)
sketch2.addGeometry(Part.Circle(App.Vector(7.7, -1.5, 0), App.Vector(0, 0, 1), 0.5), False)
sketch2.addGeometry(Part.Circle(App.Vector(7.7, -2.5, 0), App.Vector(0, 0, 1), 0.5), False)
sketch2.addGeometry(Part.Circle(App.Vector(7.7, -7.4, 0), App.Vector(0, 0, 1), 0.5), False)
sketch2.addGeometry(Part.Circle(App.Vector(7.7, -8.4, 0), App.Vector(0, 0, 1), 0.5), False)
sketch2.addGeometry(Part.Circle(App.Vector(7.7, -13.4, 0), App.Vector(0, 0, 1), 0.5), False)
sketch2.addGeometry(Part.Circle(App.Vector(7.7, -14.4, 0), App.Vector(0, 0, 1), 0.5), False)
sketch2.addGeometry(Part.Circle(App.Vector(7.7, -19.4, 0), App.Vector(0, 0, 1), 0.5), False)
sketch2.addGeometry(Part.Circle(App.Vector(7.7, -20.5, 0), App.Vector(0, 0, 1), 0.5), False)
sketch2.addGeometry(Part.Circle(App.Vector(7.7, -25.4, 0), App.Vector(0, 0, 1), 0.5), False)
sketch2.addGeometry(Part.Circle(App.Vector(7.7, -26.6, 0), App.Vector(0, 0, 1), 0.5), False)
sketch2.addGeometry(Part.Circle(App.Vector(7.7, -31.5, 0), App.Vector(0, 0, 1), 0.5), False)
sketch2.addGeometry(Part.Circle(App.Vector(7.7, -32.8, 0), App.Vector(0, 0, 1), 0.5), False)
sketch2.addConstraint(Sketcher.Constraint("Equal", 0, 1))
sketch2.addConstraint(Sketcher.Constraint("Equal", 1, 2))
sketch2.addConstraint(Sketcher.Constraint("Equal", 2, 3))
sketch2.addConstraint(Sketcher.Constraint("Equal", 3, 4))
sketch2.addConstraint(Sketcher.Constraint("Equal", 4, 5))
sketch2.addConstraint(Sketcher.Constraint("Equal", 5, 6))
sketch2.addConstraint(Sketcher.Constraint("Equal", 6, 7))
sketch2.addConstraint(Sketcher.Constraint("Equal", 7, 8))
sketch2.addConstraint(Sketcher.Constraint("Equal", 8, 9))
sketch2.addConstraint(Sketcher.Constraint("Equal", 9, 10))
sketch2.addConstraint(Sketcher.Constraint("Equal", 10, 11))
sketch2.addConstraint(Sketcher.Constraint("Equal", 11, 12))
sketch2.addConstraint(Sketcher.Constraint("Equal", 12, 13))
sketch2.addConstraint(Sketcher.Constraint("Equal", 13, 14))
sketch2.addConstraint(Sketcher.Constraint("Equal", 14, 15))
sketch2.addConstraint(Sketcher.Constraint("Equal", 15, 16))
sketch2.addConstraint(Sketcher.Constraint("Equal", 16, 17))
sketch2.addConstraint(Sketcher.Constraint("Equal", 17, 18))
sketch2.addConstraint(Sketcher.Constraint("Equal", 18, 19))
sketch2.addConstraint(Sketcher.Constraint("Equal", 19, 20))
sketch2.addConstraint(Sketcher.Constraint("Equal", 20, 21))
sketch2.addConstraint(Sketcher.Constraint("Equal", 21, 22))
sketch2.addConstraint(Sketcher.Constraint("Equal", 22, 23))
sketch2.addConstraint(Sketcher.Constraint("Symmetric", 0, 3, 23, 3, -1))
sketch2.addConstraint(Sketcher.Constraint("Vertical", 0, 3, 1, 3))
sketch2.addConstraint(Sketcher.Constraint("Vertical", 1, 3, 2, 3))
sketch2.addConstraint(Sketcher.Constraint("Vertical", 2, 3, 3, 3))
sketch2.addConstraint(Sketcher.Constraint("Vertical", 3, 3, 4, 3))
sketch2.addConstraint(Sketcher.Constraint("Vertical", 4, 3, 5, 3))
sketch2.addConstraint(Sketcher.Constraint("Vertical", 5, 3, 6, 3))
sketch2.addConstraint(Sketcher.Constraint("Vertical", 6, 3, 7, 3))
sketch2.addConstraint(Sketcher.Constraint("Vertical", 7, 3, 8, 3))
sketch2.addConstraint(Sketcher.Constraint("Vertical", 8, 3, 9, 3))
sketch2.addConstraint(Sketcher.Constraint("Vertical", 9, 3, 10, 3))
sketch2.addConstraint(Sketcher.Constraint("Vertical", 10, 3, 11, 3))
sketch2.addConstraint(Sketcher.Constraint("Vertical", 11, 3, 12, 3))
sketch2.addConstraint(Sketcher.Constraint("Vertical", 12, 3, 13, 3))
sketch2.addConstraint(Sketcher.Constraint("Vertical", 13, 3, 14, 3))
sketch2.addConstraint(Sketcher.Constraint("Vertical", 14, 3, 15, 3))
sketch2.addConstraint(Sketcher.Constraint("Vertical", 15, 3, 16, 3))
sketch2.addConstraint(Sketcher.Constraint("Vertical", 16, 3, 17, 3))
sketch2.addConstraint(Sketcher.Constraint("Vertical", 17, 3, 18, 3))
sketch2.addConstraint(Sketcher.Constraint("Vertical", 18, 3, 19, 3))
sketch2.addConstraint(Sketcher.Constraint("Vertical", 19, 3, 20, 3))
sketch2.addConstraint(Sketcher.Constraint("Vertical", 20, 3, 21, 3))
sketch2.addConstraint(Sketcher.Constraint("Vertical", 21, 3, 22, 3))
sketch2.addConstraint(Sketcher.Constraint("Diameter", 0, 1.0))
sketch2.addConstraint(Sketcher.Constraint("DistanceY", 17, 3, 15, 3, 6.0))
sketch2.addConstraint(Sketcher.Constraint("DistanceY", 18, 3, 16, 3, 6.0))
sketch2.addConstraint(Sketcher.Constraint("DistanceY", 2, 3, 0, 3, 5.58))
sketch2.addConstraint(Sketcher.Constraint("DistanceY", 9, 3, 7, 3, 5.79))
sketch2.addConstraint(Sketcher.Constraint("DistanceY", 10, 3, 8, 3, 5.79))
sketch2.addConstraint(Sketcher.Constraint("DistanceY", 5, 3, 3, 3, 5.685))
sketch2.addConstraint(Sketcher.Constraint("DistanceY", 6, 3, 4, 3, 5.685))
sketch2.addConstraint(Sketcher.Constraint("DistanceY", 13, 3, 11, 3, 5.895))
sketch2.addConstraint(Sketcher.Constraint("DistanceY", 14, 3, 12, 3, 5.895))
sketch2.addConstraint(Sketcher.Constraint("DistanceY", 21, 3, 19, 3, 6.105))
sketch2.addConstraint(Sketcher.Constraint("DistanceY", 22, 3, 20, 3, 6.105))
sketch2.addConstraint(Sketcher.Constraint("DistanceY", 3, 3, 1, 3, 5.6325))
sketch2.addConstraint(Sketcher.Constraint("DistanceY", 4, 3, 2, 3, 5.6325))
sketch2.addConstraint(Sketcher.Constraint("DistanceY", 7, 3, 5, 3, 5.7375))
sketch2.addConstraint(Sketcher.Constraint("DistanceY", 8, 3, 6, 3, 5.7375))
sketch2.addConstraint(Sketcher.Constraint("DistanceY", 11, 3, 9, 3, 5.8425))
sketch2.addConstraint(Sketcher.Constraint("DistanceY", 12, 3, 10, 3, 5.8425))
sketch2.addConstraint(Sketcher.Constraint("DistanceY", 15, 3, 13, 3, 5.9475))
sketch2.addConstraint(Sketcher.Constraint("DistanceY", 16, 3, 14, 3, 5.9475))
sketch2.addConstraint(Sketcher.Constraint("DistanceY", 19, 3, 17, 3, 6.0525))
sketch2.addConstraint(Sketcher.Constraint("DistanceY", 20, 3, 18, 3, 6.0525))
sketch2.addConstraint(Sketcher.Constraint("DistanceY", 23, 3, 21, 3, 6.1575))
sketch2.addConstraint(Sketcher.Constraint("DistanceX", -1, 1, 0, 3, 7.712132))
sketch2.addConstraint(Sketcher.Constraint("DistanceY", -1, 1, 0, 3, 32.750368))
doc.recompute()
hole = body.newObject("PartDesign::Hole", "Hole")
hole.Profile = sketch2
hole.ThreadType = "None"
hole.Diameter = 1
hole.DepthType = "ThroughAll"

doc.recompute()
